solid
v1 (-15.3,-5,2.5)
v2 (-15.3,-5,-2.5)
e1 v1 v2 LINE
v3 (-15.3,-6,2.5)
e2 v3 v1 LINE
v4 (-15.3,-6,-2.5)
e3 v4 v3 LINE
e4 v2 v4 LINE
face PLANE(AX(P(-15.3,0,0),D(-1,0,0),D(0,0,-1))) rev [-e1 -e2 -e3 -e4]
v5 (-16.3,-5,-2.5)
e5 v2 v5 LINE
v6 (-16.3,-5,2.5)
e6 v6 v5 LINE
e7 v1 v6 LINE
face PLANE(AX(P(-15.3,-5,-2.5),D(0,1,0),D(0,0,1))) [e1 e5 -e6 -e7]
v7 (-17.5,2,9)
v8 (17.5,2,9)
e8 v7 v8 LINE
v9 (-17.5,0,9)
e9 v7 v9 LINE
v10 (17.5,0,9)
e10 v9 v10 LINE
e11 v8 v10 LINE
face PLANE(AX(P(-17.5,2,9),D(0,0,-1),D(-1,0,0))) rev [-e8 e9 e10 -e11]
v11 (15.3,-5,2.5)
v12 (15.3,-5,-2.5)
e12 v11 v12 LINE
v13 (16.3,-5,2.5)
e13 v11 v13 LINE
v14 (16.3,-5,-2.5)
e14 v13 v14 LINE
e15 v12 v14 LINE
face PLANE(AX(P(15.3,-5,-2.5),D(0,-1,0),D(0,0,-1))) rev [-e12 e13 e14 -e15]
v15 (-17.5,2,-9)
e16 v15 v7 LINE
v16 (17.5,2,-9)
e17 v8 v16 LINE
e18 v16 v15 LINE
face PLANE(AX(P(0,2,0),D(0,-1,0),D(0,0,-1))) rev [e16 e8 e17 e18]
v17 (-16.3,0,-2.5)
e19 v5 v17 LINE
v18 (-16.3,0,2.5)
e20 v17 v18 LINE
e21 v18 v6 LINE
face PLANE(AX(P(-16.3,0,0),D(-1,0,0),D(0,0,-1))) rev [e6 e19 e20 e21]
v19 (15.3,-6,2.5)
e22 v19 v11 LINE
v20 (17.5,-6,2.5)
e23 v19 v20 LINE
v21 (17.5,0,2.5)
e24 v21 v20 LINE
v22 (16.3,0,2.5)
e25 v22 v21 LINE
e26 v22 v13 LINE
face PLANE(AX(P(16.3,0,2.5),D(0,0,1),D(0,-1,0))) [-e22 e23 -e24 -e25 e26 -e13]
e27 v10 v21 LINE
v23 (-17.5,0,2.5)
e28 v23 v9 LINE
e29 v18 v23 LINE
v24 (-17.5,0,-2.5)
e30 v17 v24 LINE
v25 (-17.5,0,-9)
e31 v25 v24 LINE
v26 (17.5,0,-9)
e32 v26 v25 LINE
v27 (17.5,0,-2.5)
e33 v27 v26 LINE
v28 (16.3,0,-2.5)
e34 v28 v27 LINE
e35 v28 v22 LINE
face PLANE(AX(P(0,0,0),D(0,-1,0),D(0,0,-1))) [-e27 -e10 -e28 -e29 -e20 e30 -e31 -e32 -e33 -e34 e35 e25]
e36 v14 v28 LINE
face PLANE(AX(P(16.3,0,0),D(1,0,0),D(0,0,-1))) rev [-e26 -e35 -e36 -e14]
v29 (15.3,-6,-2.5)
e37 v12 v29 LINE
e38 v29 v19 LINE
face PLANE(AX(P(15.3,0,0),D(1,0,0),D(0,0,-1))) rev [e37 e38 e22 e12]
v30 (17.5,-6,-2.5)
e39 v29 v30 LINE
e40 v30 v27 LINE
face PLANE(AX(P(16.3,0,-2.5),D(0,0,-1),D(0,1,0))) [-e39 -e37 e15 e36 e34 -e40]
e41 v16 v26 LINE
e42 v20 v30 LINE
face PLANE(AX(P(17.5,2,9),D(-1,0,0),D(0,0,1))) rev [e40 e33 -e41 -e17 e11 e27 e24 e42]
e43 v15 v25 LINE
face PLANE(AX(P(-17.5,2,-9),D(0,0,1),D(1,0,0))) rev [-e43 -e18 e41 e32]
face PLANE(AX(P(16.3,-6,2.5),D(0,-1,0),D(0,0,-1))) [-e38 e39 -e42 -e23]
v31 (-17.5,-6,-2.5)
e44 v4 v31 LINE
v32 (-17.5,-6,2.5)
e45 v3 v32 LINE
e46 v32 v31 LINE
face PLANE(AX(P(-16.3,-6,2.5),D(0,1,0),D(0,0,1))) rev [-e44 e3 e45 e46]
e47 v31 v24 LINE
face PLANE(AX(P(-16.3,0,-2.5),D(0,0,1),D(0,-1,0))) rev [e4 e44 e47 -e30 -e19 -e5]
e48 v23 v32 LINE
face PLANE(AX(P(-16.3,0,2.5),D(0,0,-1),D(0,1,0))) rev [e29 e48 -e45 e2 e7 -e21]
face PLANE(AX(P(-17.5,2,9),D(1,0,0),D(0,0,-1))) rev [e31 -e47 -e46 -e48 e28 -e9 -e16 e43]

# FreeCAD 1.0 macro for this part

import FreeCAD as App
import Part
import Sketcher

V = App.Vector


def add_polygon(sketch, points):
    """Adds a closed chain of lines whose ends are joined by coincident constraints."""
    first, n = sketch.GeometryCount, len(points)
    for a, b in zip(points, points[1:] + points[:1]):
        sketch.addGeometry(Part.LineSegment(App.Vector(*a, 0), App.Vector(*b, 0)), False)
    for i in range(n):
        sketch.addConstraint(Sketcher.Constraint("Coincident", first + i, 2, first + (i + 1) % n, 1))

doc = App.newDocument("Part")
body = doc.addObject("PartDesign::Body", "Body")

# Sketch on XZ plane
sketch1 = body.newObject("Sketcher::SketchObject", "Sketch")
sketch1.AttachmentSupport = (doc.getObject("XZ_Plane"), [""])
sketch1.MapMode = "FlatFace"
add_polygon(sketch1, [(-18, -9), (-18, 9), (18, 9), (18, -9)])  # lines 0-3
sketch1.addConstraint([
    Sketcher.Constraint("Vertical", 0),
    Sketcher.Constraint("Horizontal", 1),
    Sketcher.Constraint("Vertical", 2),
    Sketcher.Constraint("Horizontal", 3),
    Sketcher.Constraint("Symmetric", 0, 2, 2, 2, -1, 1),
    Sketcher.Constraint("DistanceX", 1, 1, 1, 2, 35.0),
    Sketcher.Constraint("DistanceY", 0, 1, 0, 2, 18.0),
])
pad1 = body.newObject("PartDesign::Pad", "Pad")
pad1.Profile = sketch1
pad1.Length = 2
pad1.Reversed = True

# Sketch on YZ plane
sketch2 = body.newObject("Sketcher::SketchObject", "Sketch001")
sketch2.AttachmentSupport = (doc.getObject("YZ_Plane"), [""])
sketch2.MapMode = "FlatFace"
sketch2.AttachmentOffset = App.Placement(V(0, 0, 17.5), App.Rotation())
add_polygon(sketch2, [(0, 2), (-6, 2), (-6, -2), (0, -2)])  # lines 0-3
sketch2.addConstraint([
    Sketcher.Constraint("Horizontal", 0),
    Sketcher.Constraint("Vertical", 1),
    Sketcher.Constraint("Horizontal", 2),
    Sketcher.Constraint("Vertical", 3),
    Sketcher.Constraint("Symmetric", 2, 2, 3, 2, -1, 1),
    Sketcher.Constraint("DistanceX", 0, 2, 0, 1, 6.0),
    Sketcher.Constraint("DistanceY", 1, 2, 1, 1, 5.0),
])
pad2 = body.newObject("PartDesign::Pad", "Pad001")
pad2.Profile = sketch2
pad2.Length = 1.2
pad2.Reversed = True

# Sketch on YZ plane
sketch3 = body.newObject("Sketcher::SketchObject", "Sketch002")
sketch3.AttachmentSupport = (doc.getObject("YZ_Plane"), [""])
sketch3.MapMode = "FlatFace"
sketch3.AttachmentOffset = App.Placement(V(0, 0, 16.3), App.Rotation())
add_polygon(sketch3, [(-5, -2.5), (-6, -2.5), (-6, 2.5), (-5, 2.5)])  # lines 0-3
sketch3.addConstraint([
    Sketcher.Constraint("Horizontal", 0),
    Sketcher.Constraint("Vertical", 1),
    Sketcher.Constraint("Horizontal", 2),
    Sketcher.Constraint("Vertical", 3),
    Sketcher.Constraint("DistanceX", 0, 2, 0, 1, 1.0),
    Sketcher.Constraint("DistanceY", 1, 1, 1, 2, 5.0),
    Sketcher.Constraint("DistanceX", 0, 2, -1, 1, 6.0),
    Sketcher.Constraint("DistanceY", 0, 2, -1, 1, 2.5),
])
pad3 = body.newObject("PartDesign::Pad", "Pad002")
pad3.Profile = sketch3
pad3.Length = 1
pad3.Reversed = True
doc.recompute()

mirrored = body.newObject("PartDesign::Mirrored", "Mirrored")
mirrored.Originals = [pad2, pad3]
mirrored.MirrorPlane = (doc.getObject("YZ_Plane"), [""])
body.Tip = mirrored

doc.recompute()
